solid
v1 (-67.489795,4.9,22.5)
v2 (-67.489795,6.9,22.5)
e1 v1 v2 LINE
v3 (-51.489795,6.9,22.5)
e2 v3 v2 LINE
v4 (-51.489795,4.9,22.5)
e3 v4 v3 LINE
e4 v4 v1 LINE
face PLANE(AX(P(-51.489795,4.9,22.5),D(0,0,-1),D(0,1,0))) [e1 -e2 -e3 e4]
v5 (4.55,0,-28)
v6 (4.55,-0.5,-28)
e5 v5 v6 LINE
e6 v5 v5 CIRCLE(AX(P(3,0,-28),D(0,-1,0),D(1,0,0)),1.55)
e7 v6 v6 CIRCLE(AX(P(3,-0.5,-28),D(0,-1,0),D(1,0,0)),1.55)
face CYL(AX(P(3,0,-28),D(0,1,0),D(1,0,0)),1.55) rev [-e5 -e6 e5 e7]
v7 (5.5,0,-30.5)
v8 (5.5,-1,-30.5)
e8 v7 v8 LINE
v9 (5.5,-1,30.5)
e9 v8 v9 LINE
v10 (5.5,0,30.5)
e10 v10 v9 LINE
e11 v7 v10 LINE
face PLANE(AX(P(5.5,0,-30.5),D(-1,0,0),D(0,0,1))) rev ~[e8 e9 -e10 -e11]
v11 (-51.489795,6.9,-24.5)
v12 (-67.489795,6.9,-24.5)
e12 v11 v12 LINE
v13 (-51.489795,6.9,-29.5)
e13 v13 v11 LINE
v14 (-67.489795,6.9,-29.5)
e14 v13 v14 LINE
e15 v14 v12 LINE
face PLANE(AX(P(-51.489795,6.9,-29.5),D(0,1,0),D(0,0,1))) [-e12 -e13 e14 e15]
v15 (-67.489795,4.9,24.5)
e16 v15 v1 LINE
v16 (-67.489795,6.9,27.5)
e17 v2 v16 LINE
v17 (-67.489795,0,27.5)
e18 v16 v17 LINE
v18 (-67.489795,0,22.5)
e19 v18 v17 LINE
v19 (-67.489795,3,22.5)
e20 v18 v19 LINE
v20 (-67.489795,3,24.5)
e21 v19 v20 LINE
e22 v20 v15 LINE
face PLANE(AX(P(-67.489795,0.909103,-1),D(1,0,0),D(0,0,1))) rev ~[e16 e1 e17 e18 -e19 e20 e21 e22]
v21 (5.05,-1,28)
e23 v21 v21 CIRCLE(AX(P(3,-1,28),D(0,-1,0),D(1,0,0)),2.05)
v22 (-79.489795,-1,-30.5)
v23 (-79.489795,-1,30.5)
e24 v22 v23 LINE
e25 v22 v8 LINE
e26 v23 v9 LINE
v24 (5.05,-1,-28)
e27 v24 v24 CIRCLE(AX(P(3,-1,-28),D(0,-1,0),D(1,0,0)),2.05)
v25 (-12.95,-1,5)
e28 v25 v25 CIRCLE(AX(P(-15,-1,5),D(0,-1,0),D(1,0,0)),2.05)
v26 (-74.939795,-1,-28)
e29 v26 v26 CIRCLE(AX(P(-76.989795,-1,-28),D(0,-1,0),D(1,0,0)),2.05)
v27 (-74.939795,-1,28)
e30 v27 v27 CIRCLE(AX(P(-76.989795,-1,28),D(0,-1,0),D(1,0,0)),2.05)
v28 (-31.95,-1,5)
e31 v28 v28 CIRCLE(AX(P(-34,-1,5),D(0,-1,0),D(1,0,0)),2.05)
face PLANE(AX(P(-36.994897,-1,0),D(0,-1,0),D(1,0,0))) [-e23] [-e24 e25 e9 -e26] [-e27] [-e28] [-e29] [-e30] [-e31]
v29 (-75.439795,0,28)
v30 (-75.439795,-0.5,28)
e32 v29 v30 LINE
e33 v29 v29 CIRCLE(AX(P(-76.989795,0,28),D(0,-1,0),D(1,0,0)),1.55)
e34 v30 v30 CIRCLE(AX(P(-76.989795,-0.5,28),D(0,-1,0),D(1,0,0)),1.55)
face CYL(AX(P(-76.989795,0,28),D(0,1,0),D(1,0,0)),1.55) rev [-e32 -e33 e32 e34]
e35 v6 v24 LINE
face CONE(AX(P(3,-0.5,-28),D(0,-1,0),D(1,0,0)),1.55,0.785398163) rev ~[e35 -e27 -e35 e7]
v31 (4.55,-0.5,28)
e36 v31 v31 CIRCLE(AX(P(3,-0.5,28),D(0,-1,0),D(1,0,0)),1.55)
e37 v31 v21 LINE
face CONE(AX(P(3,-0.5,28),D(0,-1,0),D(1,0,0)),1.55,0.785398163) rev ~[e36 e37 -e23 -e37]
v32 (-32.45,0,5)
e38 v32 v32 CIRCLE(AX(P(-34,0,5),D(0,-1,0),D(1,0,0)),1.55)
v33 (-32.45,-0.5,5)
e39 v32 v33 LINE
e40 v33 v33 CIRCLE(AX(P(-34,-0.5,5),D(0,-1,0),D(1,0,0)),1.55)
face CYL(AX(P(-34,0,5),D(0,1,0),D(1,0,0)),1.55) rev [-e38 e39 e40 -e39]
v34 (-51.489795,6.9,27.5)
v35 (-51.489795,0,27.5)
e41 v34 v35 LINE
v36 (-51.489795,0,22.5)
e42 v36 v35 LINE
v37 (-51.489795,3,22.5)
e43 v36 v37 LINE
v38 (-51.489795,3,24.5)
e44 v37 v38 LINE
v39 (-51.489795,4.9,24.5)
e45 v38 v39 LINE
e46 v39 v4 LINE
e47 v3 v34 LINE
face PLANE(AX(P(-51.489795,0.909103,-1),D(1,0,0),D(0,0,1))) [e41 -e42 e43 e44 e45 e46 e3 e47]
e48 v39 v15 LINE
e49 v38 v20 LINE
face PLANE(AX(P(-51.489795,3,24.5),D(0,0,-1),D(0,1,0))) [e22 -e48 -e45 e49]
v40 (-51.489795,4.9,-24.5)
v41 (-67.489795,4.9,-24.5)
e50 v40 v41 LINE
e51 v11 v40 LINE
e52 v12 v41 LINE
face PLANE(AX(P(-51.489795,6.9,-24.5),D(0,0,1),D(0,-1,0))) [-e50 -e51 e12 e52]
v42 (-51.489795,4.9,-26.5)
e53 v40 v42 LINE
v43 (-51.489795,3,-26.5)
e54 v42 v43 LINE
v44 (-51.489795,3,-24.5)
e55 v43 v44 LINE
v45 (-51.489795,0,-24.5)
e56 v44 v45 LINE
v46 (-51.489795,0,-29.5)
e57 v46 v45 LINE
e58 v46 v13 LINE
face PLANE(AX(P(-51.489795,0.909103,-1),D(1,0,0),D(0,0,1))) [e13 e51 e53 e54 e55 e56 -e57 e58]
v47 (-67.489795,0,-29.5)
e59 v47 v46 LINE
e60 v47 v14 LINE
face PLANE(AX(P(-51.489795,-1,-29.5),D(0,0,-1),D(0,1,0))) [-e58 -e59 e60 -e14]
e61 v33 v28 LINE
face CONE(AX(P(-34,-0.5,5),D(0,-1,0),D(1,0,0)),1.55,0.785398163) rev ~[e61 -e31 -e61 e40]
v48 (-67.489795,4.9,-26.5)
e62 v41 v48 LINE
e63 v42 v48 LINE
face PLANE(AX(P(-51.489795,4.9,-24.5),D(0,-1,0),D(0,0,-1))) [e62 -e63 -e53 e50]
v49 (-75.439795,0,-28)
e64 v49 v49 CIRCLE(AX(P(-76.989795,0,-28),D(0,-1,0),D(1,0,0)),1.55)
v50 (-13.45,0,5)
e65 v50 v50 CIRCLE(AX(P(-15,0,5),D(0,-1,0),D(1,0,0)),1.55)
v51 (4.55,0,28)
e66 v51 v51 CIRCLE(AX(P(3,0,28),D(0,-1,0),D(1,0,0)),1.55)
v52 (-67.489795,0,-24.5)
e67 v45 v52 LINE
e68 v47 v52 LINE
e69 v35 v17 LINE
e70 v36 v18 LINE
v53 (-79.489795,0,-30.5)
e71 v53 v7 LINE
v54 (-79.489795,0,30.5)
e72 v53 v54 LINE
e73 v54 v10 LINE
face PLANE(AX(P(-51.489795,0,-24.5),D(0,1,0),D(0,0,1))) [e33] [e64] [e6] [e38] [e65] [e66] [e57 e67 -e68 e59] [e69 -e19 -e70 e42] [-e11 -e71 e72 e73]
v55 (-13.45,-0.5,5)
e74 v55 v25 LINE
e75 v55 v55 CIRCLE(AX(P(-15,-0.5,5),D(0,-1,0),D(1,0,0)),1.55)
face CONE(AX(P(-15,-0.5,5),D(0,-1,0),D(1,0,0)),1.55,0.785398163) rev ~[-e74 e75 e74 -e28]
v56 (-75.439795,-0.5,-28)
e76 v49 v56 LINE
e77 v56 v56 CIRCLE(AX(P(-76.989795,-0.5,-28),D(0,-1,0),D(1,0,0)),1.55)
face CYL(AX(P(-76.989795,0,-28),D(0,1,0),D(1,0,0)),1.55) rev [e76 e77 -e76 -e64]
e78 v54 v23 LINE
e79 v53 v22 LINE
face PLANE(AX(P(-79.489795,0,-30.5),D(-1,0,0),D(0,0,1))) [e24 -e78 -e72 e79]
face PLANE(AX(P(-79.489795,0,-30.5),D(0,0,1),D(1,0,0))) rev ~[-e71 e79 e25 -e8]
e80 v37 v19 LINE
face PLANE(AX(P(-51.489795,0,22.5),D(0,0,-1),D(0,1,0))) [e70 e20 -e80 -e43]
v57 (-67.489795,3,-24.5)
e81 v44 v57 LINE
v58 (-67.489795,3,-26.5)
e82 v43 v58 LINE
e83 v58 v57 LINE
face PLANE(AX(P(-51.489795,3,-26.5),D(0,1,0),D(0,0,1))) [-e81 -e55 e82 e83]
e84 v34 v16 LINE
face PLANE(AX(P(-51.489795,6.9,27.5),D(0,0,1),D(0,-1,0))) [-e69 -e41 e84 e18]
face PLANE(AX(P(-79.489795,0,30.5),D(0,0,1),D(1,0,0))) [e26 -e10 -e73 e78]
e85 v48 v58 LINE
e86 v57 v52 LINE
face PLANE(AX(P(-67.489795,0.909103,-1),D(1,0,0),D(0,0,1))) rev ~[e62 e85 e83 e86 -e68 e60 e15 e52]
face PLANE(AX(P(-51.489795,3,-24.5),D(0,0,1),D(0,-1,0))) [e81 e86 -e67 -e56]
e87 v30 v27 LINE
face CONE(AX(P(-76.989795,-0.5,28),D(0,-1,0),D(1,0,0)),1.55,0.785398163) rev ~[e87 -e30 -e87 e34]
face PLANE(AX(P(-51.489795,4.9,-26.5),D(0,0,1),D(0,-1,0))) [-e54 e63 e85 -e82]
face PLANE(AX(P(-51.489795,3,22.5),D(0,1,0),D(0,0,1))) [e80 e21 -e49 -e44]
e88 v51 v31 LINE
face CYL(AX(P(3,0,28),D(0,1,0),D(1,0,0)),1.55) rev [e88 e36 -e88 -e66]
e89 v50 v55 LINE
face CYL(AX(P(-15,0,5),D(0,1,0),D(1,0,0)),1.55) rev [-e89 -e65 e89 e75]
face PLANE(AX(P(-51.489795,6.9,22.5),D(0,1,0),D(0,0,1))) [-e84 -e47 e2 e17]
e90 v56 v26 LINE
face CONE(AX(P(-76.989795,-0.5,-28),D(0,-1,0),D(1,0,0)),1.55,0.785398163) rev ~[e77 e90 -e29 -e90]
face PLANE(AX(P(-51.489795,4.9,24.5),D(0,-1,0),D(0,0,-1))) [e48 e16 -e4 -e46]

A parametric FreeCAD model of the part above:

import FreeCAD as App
import Part
import Sketcher
from FreeCAD import Vector
Q = App.Units.Quantity


def edges_at(feature, points):
    """Names of the edges that pass closest to the given points."""
    edges = feature.Shape.Edges
    near = lambda p: min(range(len(edges)), key=lambda i: edges[i].distToShape(Part.Vertex(*p))[0])
    return sorted({f"Edge{near(p) + 1}" for p in points})

doc = App.newDocument("Part")
body = doc.addObject("PartDesign::Body", "Body")

# Sketch on XZ plane
sketch1 = body.newObject("Sketcher::SketchObject", "Sketch")
sketch1.AttachmentSupport = (doc.getObject("XZ_Plane"), [""])
sketch1.MapMode = "FlatFace"
sketch1.addGeometry([
    Part.LineSegment(Vector(-79.489795, 30.5, 0), Vector(-79.489795, -30.5, 0)),  # 0
    Part.LineSegment(Vector(-79.489795, -30.5, 0), Vector(5.5, -30.5, 0)),  # 1
    Part.LineSegment(Vector(5.5, -30.5, 0), Vector(5.5, 30.5, 0)),  # 2
    Part.LineSegment(Vector(5.5, 30.5, 0), Vector(-79.489795, 30.5, 0)),  # 3
    Part.Circle(Vector(-76.989795, -28, 0), Vector(0, 0, 1), 1.55),  # 4
    Part.Circle(Vector(3, -28, 0), Vector(0, 0, 1), 1.55),  # 5
    Part.Circle(Vector(-76.989795, 28, 0), Vector(0, 0, 1), 1.55),  # 6
    Part.Circle(Vector(-34, 5, 0), Vector(0, 0, 1), 1.55),  # 7
    Part.Circle(Vector(-15, 5, 0), Vector(0, 0, 1), 1.55),  # 8
    Part.Circle(Vector(3, 28, 0), Vector(0, 0, 1), 1.55),  # 9
], False)
sketch1.addConstraint([
    Sketcher.Constraint("Coincident", 0, 2, 1, 1),
    Sketcher.Constraint("Coincident", 1, 2, 2, 1),
    Sketcher.Constraint("Coincident", 2, 2, 3, 1),
    Sketcher.Constraint("Coincident", 3, 2, 0, 1),
    Sketcher.Constraint("Vertical", 0),
    Sketcher.Constraint("Horizontal", 1),
    Sketcher.Constraint("Vertical", 2),
    Sketcher.Constraint("Horizontal", 3),
    Sketcher.Constraint("Equal", 4, 5),
    Sketcher.Constraint("Equal", 5, 6),
    Sketcher.Constraint("Equal", 6, 7),
    Sketcher.Constraint("Equal", 7, 8),
    Sketcher.Constraint("Equal", 8, 9),
    Sketcher.Constraint("Symmetric", 4, 3, 6, 3, -1),
    Sketcher.Constraint("Symmetric", 5, 3, 9, 3, -1),
    Sketcher.Constraint("Horizontal", 4, 3, 5, 3),
    Sketcher.Constraint("Horizontal", 7, 3, 8, 3),
    Sketcher.Constraint("Diameter", 4, Q("3.1 mm")),
    Sketcher.Constraint("DistanceY", 0, 2, 0, 1, Q("61 mm")),
    Sketcher.Constraint("DistanceY", 4, 3, -1, 1, Q("28 mm")),
    Sketcher.Constraint("DistanceX", -1, 1, 5, 3, Q("3 mm")),
    Sketcher.Constraint("DistanceX", 7, 3, -1, 1, Q("34 mm")),
    Sketcher.Constraint("DistanceY", -1, 1, 7, 3, Q("5 mm")),
    Sketcher.Constraint("DistanceX", 8, 3, -1, 1, Q("15 mm")),
    Sketcher.Constraint("DistanceY", 0, 2, -1, 1, Q("30.5 mm")),
    Sketcher.Constraint("DistanceX", -1, 1, 1, 2, Q("5.5 mm")),
    Sketcher.Constraint("DistanceX", 0, 2, 4, 3, Q("2.5 mm")),
    Sketcher.Constraint("DistanceX", 1, 1, 1, 2, Q("84.989795 mm")),
])
pad1 = body.newObject("PartDesign::Pad", "Pad")
pad1.Profile = sketch1
pad1.Length = 1
doc.recompute()

chamfer = body.newObject("PartDesign::Chamfer", "Chamfer")
chamfer.Base = (pad1, edges_at(pad1, [
    (-78.54, -1, -28),
    (-16.55, -1, 5),
    (1.45, -1, 28),
    (1.45, -1, -28),
    (-78.54, -1, 28),
    (-35.55, -1, 5),
]))
chamfer.Size = 0.5

# Sketch on YZ plane
sketch2 = body.newObject("Sketcher::SketchObject", "Sketch001")
sketch2.AttachmentSupport = (doc.getObject("YZ_Plane"), [""])
sketch2.MapMode = "FlatFace"
sketch2.AttachmentOffset = App.Placement(Vector(0, 0, -51.489795), App.Rotation())
sketch2.addGeometry([
    Part.LineSegment(Vector(-1, -29.5, 0), Vector(-1, 27.5, 0)),  # 0
    Part.LineSegment(Vector(-1, 27.5, 0), Vector(6.9, 27.5, 0)),  # 1
    Part.LineSegment(Vector(6.9, 27.5, 0), Vector(6.9, 22.5, 0)),  # 2
    Part.LineSegment(Vector(6.9, 22.5, 0), Vector(4.9, 22.5, 0)),  # 3
    Part.LineSegment(Vector(4.9, 22.5, 0), Vector(4.9, 24.5, 0)),  # 4
    Part.LineSegment(Vector(4.9, 24.5, 0), Vector(3, 24.5, 0)),  # 5
    Part.LineSegment(Vector(3, 24.5, 0), Vector(3, 22.5, 0)),  # 6
    Part.LineSegment(Vector(3, 22.5, 0), Vector(0, 22.5, 0)),  # 7
    Part.LineSegment(Vector(0, 22.5, 0), Vector(0, -24.5, 0)),  # 8
    Part.LineSegment(Vector(0, -24.5, 0), Vector(3, -24.5, 0)),  # 9
    Part.LineSegment(Vector(3, -24.5, 0), Vector(3, -26.5, 0)),  # 10
    Part.LineSegment(Vector(3, -26.5, 0), Vector(4.9, -26.5, 0)),  # 11
    Part.LineSegment(Vector(4.9, -26.5, 0), Vector(4.9, -24.5, 0)),  # 12
    Part.LineSegment(Vector(4.9, -24.5, 0), Vector(6.9, -24.5, 0)),  # 13
    Part.LineSegment(Vector(6.9, -24.5, 0), Vector(6.9, -29.5, 0)),  # 14
    Part.LineSegment(Vector(6.9, -29.5, 0), Vector(-1, -29.5, 0)),  # 15
], False)
sketch2.addConstraint([
    Sketcher.Constraint("Coincident", 0, 2, 1, 1),
    Sketcher.Constraint("Coincident", 1, 2, 2, 1),
    Sketcher.Constraint("Coincident", 2, 2, 3, 1),
    Sketcher.Constraint("Coincident", 3, 2, 4, 1),
    Sketcher.Constraint("Coincident", 4, 2, 5, 1),
    Sketcher.Constraint("Coincident", 5, 2, 6, 1),
    Sketcher.Constraint("Coincident", 6, 2, 7, 1),
    Sketcher.Constraint("Coincident", 7, 2, 8, 1),
    Sketcher.Constraint("Coincident", 8, 2, 9, 1),
    Sketcher.Constraint("Coincident", 9, 2, 10, 1),
    Sketcher.Constraint("Coincident", 10, 2, 11, 1),
    Sketcher.Constraint("Coincident", 11, 2, 12, 1),
    Sketcher.Constraint("Coincident", 12, 2, 13, 1),
    Sketcher.Constraint("Coincident", 13, 2, 14, 1),
    Sketcher.Constraint("Coincident", 14, 2, 15, 1),
    Sketcher.Constraint("Coincident", 15, 2, 0, 1),
    Sketcher.Constraint("Vertical", 0),
    Sketcher.Constraint("Horizontal", 1),
    Sketcher.Constraint("Vertical", 2),
    Sketcher.Constraint("Horizontal", 3),
    Sketcher.Constraint("Vertical", 4),
    Sketcher.Constraint("Horizontal", 5),
    Sketcher.Constraint("Vertical", 6),
    Sketcher.Constraint("Horizontal", 7),
    Sketcher.Constraint("Vertical", 8),
    Sketcher.Constraint("Horizontal", 9),
    Sketcher.Constraint("Vertical", 10),
    Sketcher.Constraint("Horizontal", 11),
    Sketcher.Constraint("Vertical", 12),
    Sketcher.Constraint("Horizontal", 13),
    Sketcher.Constraint("Vertical", 14),
    Sketcher.Constraint("Horizontal", 15),
    Sketcher.Constraint("Symmetric", 5, 2, 9, 2, -1),
    Sketcher.Constraint("Symmetric", 4, 2, 12, 2, -1),
    Sketcher.Constraint("PointOnObject", 7, 2, -2),
    Sketcher.Constraint("Horizontal", 3, 2, 6, 2),
    Sketcher.Constraint("Vertical", 2, 2, 13, 2),
    Sketcher.Constraint("Equal", 13, 4),
    Sketcher.Constraint("Equal", 6, 10),
    Sketcher.Constraint("Equal", 2, 14),
    Sketcher.Constraint("DistanceX", 3, 2, 3, 1, Q("2 mm")),
    Sketcher.Constraint("DistanceX", 7, 2, 7, 1, Q("3 mm")),
    Sketcher.Constraint("DistanceY", 0, 1, 0, 2, Q("57 mm")),
    Sketcher.Constraint("DistanceY", 2, 2, 2, 1, Q("5 mm")),
    Sketcher.Constraint("DistanceX", 1, 1, 1, 2, Q("7.9 mm")),
    Sketcher.Constraint("DistanceX", 5, 2, 5, 1, Q("1.9 mm")),
])
pad2 = body.newObject("PartDesign::Pad", "Pad001")
pad2.Profile = sketch2
pad2.Length = 16
pad2.Reversed = True

doc.recompute()
